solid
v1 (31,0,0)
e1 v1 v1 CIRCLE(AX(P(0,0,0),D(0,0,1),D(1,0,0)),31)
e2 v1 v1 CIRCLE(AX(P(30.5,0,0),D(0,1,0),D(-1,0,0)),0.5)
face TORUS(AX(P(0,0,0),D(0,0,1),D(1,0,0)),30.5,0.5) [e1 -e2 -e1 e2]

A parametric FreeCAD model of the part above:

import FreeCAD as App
import Part
import Sketcher

V = App.Vector

doc = App.newDocument("Part")
body = doc.addObject("PartDesign::Body", "Body")

sketch1 = body.newObject("Sketcher::SketchObject", "Sketch")
sketch1.AttachmentSupport = (doc.getObject("XZ_Plane"), [""])
sketch1.MapMode = "FlatFace"
sketch1.addGeometry(Part.Circle(V(30.5, 0, 0), V(0, 0, 1), 0.5), False)
sketch1.addConstraint([
    Sketcher.Constraint("PointOnObject", 0, 3, -1),
    Sketcher.Constraint("Diameter", 0, 1.0),
    Sketcher.Constraint("DistanceX", -1, 1, 0, 3, 30.5),
])

sketch2 = body.newObject("Sketcher::SketchObject", "Sketch001")
sketch2.AttachmentSupport = (doc.getObject("XY_Plane"), [""])
sketch2.MapMode = "FlatFace"
sketch2.addGeometry(Part.Circle(V(0, 0, 0), V(0, 0, 1), 30), False)
sketch2.addConstraint([
    Sketcher.Constraint("Coincident", 0, 3, -1, 1),
    Sketcher.Constraint("Diameter", 0, 61.0),
])
doc.recompute()

additivepipe = body.newObject("PartDesign::AdditivePipe", "AdditivePipe")
additivepipe.Profile = sketch1
additivepipe.Spine = (sketch2, ["Edge1"])

doc.recompute()
